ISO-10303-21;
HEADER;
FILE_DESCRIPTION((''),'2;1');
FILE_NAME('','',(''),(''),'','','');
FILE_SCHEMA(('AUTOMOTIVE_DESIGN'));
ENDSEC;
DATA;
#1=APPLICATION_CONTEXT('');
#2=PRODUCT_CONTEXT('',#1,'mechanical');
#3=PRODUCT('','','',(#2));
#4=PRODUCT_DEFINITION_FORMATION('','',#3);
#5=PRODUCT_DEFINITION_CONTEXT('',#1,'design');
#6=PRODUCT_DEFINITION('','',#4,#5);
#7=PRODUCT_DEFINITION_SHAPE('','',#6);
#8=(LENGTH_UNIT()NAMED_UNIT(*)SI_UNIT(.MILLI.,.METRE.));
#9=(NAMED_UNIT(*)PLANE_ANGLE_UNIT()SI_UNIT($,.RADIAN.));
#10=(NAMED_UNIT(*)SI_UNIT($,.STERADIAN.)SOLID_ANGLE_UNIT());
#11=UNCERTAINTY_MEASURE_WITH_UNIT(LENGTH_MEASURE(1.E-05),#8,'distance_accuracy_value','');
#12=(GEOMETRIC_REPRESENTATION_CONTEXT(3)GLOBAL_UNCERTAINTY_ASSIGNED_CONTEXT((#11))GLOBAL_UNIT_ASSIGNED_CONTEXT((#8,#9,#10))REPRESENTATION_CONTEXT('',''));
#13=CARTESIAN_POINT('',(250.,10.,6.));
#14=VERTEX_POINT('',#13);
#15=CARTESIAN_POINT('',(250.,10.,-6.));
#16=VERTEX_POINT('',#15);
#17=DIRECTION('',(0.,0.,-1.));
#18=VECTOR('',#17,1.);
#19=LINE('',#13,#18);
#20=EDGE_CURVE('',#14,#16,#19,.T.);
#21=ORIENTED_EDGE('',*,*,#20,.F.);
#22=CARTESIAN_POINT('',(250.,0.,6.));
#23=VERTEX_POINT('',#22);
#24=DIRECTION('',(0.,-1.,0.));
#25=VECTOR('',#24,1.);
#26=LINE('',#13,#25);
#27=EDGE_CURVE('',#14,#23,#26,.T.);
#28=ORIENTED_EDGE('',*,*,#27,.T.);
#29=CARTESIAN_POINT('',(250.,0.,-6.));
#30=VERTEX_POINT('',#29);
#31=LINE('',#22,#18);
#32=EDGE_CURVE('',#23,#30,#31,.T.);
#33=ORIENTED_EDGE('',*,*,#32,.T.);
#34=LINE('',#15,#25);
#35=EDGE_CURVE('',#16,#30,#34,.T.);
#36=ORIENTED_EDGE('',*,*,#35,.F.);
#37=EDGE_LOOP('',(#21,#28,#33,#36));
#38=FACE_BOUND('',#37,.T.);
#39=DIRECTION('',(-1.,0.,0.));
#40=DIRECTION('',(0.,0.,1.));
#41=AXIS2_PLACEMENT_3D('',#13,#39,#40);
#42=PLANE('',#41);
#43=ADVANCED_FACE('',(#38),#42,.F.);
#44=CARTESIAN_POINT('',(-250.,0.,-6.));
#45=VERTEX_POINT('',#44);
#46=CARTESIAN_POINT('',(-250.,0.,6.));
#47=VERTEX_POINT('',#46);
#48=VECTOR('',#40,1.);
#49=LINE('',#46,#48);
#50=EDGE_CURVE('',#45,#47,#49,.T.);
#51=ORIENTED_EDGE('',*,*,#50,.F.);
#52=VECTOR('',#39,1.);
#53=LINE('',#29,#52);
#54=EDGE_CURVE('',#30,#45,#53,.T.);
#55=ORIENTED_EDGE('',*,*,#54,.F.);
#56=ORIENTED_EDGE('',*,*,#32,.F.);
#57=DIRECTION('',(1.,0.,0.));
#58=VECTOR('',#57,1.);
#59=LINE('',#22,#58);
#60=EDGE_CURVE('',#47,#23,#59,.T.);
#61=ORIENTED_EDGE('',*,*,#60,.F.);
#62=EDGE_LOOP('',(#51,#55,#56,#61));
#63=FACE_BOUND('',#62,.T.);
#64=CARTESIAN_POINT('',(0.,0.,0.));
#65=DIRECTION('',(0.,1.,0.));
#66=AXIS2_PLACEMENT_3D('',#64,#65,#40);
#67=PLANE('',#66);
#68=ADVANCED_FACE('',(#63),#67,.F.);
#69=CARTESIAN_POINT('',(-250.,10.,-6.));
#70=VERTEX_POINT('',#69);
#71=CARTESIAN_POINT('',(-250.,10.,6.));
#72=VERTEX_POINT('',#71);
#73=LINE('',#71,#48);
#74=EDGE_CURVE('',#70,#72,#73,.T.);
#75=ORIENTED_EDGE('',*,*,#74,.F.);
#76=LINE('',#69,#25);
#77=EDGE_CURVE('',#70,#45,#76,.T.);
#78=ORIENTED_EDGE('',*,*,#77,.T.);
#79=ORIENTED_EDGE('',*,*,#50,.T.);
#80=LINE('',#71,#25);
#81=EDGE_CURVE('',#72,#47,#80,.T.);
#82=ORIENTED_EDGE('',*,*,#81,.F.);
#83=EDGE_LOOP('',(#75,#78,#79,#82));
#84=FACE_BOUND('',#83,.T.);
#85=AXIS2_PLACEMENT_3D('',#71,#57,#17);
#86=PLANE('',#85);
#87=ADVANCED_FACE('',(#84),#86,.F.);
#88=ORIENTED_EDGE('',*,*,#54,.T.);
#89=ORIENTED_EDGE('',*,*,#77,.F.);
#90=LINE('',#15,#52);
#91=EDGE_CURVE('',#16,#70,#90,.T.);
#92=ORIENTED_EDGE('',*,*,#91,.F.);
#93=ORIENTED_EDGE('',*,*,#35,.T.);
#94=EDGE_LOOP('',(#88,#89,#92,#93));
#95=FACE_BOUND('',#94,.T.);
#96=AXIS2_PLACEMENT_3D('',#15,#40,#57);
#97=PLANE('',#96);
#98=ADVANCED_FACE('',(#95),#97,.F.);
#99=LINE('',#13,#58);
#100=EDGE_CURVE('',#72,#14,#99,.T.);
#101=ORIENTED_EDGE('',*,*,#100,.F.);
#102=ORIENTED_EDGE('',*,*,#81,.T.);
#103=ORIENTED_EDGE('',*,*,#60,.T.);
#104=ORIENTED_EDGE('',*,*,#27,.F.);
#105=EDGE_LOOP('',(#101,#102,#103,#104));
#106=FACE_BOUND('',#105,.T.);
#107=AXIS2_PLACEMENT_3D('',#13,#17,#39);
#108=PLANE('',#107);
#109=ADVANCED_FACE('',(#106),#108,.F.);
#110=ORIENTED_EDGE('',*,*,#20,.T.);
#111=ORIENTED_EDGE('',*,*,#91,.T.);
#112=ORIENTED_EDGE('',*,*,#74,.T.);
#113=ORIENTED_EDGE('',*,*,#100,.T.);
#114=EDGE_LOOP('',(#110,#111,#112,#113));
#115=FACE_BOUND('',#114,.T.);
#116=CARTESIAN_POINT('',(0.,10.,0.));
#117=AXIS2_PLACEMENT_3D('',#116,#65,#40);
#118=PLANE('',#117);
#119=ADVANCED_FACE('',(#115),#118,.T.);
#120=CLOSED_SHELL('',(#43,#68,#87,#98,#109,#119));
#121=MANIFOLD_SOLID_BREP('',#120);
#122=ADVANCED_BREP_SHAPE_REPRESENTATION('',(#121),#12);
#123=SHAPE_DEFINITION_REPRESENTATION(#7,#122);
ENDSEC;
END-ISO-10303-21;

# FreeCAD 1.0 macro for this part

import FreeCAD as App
import Part
import Sketcher

V = App.Vector

doc = App.newDocument("Part")
params = doc.addObject("Spreadsheet::Sheet", "Params")
for row, (alias, value) in enumerate([
    ("sketch1_width", "500 mm"),
    ("sketch1_height", "12 mm"),
    ("pad1_length", "10 mm"),
], start=1):
    params.set(f"A{row}", alias)
    params.set(f"B{row}", "=" + value)
    params.setAlias(f"B{row}", alias)

body = doc.addObject("PartDesign::Body", "Body")

sketch1 = body.newObject("Sketcher::SketchObject", "Sketch")
sketch1.AttachmentSupport = (doc.getObject("XZ_Plane"), [""])
sketch1.MapMode = "FlatFace"
sketch1.addGeometry([
    Part.LineSegment(V(-250, -6, 0), V(-250, 6, 0)),
    Part.LineSegment(V(-250, 6, 0), V(250, 6, 0)),
    Part.LineSegment(V(250, 6, 0), V(250, -6, 0)),
    Part.LineSegment(V(250, -6, 0), V(-250, -6, 0)),
], False)
sketch1.addConstraint([
    Sketcher.Constraint("Coincident", 0, 2, 1, 1),
    Sketcher.Constraint("Coincident", 1, 2, 2, 1),
    Sketcher.Constraint("Coincident", 2, 2, 3, 1),
    Sketcher.Constraint("Coincident", 3, 2, 0, 1),
    Sketcher.Constraint("Vertical", 0),
    Sketcher.Constraint("Horizontal", 1),
    Sketcher.Constraint("Vertical", 2),
    Sketcher.Constraint("Horizontal", 3),
    Sketcher.Constraint("Symmetric", 0, 2, 2, 2, -1, 1),
    Sketcher.Constraint("DistanceX", 1, 1, 1, 2, 500.0),
    Sketcher.Constraint("DistanceY", 0, 1, 0, 2, 12.0),
])
sketch1.setExpression("Constraints[9]", "Params.sketch1_width")
sketch1.setExpression("Constraints[10]", "Params.sketch1_height")
pad1 = body.newObject("PartDesign::Pad", "Pad")
pad1.Profile = sketch1
pad1.setExpression("Length", "Params.pad1_length")
pad1.Reversed = True

doc.recompute()
